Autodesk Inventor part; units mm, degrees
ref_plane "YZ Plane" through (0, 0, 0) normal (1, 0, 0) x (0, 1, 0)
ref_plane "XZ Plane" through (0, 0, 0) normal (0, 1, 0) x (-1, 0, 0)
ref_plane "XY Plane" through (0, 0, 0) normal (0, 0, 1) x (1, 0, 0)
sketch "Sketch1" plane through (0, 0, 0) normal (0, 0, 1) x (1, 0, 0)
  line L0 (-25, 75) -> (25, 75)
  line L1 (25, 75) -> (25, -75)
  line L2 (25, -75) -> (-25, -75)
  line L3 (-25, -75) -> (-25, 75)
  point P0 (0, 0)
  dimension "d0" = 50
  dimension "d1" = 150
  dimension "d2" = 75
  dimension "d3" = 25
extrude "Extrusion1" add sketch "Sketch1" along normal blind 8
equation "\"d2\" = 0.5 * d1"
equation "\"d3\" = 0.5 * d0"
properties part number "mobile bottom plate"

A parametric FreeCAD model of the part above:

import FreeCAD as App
import Part
import Sketcher
Q = App.Units.Quantity


def add_polygon(sketch, points):
    """Adds a closed chain of lines whose ends are joined by coincident constraints."""
    first, n = sketch.GeometryCount, len(points)
    for a, b in zip(points, points[1:] + points[:1]):
        sketch.addGeometry(Part.LineSegment(App.Vector(*a, 0), App.Vector(*b, 0)), False)
    for i in range(n):
        sketch.addConstraint(Sketcher.Constraint("Coincident", first + i, 2, first + (i + 1) % n, 1))

doc = App.newDocument("Part")
body = doc.addObject("PartDesign::Body", "Body")

# Sketch on XY plane
sketch1 = doc.addObject("Sketcher::SketchObject", "Sketch")
body.addObject(sketch1)
sketch1.AttachmentSupport = (doc.XY_Plane, [""])
sketch1.MapMode = "FlatFace"
add_polygon(sketch1, [(25, 75), (-25, 75), (-25, -75), (25, -75)])  # lines 0-3
sketch1.addConstraint([
    Sketcher.Constraint("Horizontal", 0),
    Sketcher.Constraint("Vertical", 1),
    Sketcher.Constraint("Horizontal", 2),
    Sketcher.Constraint("Vertical", 3),
    Sketcher.Constraint("Symmetric", 0, 2, 2, 2, -1, 1),
    Sketcher.Constraint("DistanceX", 0, 2, 0, 1, Q("50 mm")),
    Sketcher.Constraint("DistanceY", 1, 2, 1, 1, Q("150 mm")),
])
pad1 = doc.addObject("PartDesign::Pad", "Pad")
body.addObject(pad1)
pad1.Profile = sketch1
pad1.Length = 8

doc.recompute()
